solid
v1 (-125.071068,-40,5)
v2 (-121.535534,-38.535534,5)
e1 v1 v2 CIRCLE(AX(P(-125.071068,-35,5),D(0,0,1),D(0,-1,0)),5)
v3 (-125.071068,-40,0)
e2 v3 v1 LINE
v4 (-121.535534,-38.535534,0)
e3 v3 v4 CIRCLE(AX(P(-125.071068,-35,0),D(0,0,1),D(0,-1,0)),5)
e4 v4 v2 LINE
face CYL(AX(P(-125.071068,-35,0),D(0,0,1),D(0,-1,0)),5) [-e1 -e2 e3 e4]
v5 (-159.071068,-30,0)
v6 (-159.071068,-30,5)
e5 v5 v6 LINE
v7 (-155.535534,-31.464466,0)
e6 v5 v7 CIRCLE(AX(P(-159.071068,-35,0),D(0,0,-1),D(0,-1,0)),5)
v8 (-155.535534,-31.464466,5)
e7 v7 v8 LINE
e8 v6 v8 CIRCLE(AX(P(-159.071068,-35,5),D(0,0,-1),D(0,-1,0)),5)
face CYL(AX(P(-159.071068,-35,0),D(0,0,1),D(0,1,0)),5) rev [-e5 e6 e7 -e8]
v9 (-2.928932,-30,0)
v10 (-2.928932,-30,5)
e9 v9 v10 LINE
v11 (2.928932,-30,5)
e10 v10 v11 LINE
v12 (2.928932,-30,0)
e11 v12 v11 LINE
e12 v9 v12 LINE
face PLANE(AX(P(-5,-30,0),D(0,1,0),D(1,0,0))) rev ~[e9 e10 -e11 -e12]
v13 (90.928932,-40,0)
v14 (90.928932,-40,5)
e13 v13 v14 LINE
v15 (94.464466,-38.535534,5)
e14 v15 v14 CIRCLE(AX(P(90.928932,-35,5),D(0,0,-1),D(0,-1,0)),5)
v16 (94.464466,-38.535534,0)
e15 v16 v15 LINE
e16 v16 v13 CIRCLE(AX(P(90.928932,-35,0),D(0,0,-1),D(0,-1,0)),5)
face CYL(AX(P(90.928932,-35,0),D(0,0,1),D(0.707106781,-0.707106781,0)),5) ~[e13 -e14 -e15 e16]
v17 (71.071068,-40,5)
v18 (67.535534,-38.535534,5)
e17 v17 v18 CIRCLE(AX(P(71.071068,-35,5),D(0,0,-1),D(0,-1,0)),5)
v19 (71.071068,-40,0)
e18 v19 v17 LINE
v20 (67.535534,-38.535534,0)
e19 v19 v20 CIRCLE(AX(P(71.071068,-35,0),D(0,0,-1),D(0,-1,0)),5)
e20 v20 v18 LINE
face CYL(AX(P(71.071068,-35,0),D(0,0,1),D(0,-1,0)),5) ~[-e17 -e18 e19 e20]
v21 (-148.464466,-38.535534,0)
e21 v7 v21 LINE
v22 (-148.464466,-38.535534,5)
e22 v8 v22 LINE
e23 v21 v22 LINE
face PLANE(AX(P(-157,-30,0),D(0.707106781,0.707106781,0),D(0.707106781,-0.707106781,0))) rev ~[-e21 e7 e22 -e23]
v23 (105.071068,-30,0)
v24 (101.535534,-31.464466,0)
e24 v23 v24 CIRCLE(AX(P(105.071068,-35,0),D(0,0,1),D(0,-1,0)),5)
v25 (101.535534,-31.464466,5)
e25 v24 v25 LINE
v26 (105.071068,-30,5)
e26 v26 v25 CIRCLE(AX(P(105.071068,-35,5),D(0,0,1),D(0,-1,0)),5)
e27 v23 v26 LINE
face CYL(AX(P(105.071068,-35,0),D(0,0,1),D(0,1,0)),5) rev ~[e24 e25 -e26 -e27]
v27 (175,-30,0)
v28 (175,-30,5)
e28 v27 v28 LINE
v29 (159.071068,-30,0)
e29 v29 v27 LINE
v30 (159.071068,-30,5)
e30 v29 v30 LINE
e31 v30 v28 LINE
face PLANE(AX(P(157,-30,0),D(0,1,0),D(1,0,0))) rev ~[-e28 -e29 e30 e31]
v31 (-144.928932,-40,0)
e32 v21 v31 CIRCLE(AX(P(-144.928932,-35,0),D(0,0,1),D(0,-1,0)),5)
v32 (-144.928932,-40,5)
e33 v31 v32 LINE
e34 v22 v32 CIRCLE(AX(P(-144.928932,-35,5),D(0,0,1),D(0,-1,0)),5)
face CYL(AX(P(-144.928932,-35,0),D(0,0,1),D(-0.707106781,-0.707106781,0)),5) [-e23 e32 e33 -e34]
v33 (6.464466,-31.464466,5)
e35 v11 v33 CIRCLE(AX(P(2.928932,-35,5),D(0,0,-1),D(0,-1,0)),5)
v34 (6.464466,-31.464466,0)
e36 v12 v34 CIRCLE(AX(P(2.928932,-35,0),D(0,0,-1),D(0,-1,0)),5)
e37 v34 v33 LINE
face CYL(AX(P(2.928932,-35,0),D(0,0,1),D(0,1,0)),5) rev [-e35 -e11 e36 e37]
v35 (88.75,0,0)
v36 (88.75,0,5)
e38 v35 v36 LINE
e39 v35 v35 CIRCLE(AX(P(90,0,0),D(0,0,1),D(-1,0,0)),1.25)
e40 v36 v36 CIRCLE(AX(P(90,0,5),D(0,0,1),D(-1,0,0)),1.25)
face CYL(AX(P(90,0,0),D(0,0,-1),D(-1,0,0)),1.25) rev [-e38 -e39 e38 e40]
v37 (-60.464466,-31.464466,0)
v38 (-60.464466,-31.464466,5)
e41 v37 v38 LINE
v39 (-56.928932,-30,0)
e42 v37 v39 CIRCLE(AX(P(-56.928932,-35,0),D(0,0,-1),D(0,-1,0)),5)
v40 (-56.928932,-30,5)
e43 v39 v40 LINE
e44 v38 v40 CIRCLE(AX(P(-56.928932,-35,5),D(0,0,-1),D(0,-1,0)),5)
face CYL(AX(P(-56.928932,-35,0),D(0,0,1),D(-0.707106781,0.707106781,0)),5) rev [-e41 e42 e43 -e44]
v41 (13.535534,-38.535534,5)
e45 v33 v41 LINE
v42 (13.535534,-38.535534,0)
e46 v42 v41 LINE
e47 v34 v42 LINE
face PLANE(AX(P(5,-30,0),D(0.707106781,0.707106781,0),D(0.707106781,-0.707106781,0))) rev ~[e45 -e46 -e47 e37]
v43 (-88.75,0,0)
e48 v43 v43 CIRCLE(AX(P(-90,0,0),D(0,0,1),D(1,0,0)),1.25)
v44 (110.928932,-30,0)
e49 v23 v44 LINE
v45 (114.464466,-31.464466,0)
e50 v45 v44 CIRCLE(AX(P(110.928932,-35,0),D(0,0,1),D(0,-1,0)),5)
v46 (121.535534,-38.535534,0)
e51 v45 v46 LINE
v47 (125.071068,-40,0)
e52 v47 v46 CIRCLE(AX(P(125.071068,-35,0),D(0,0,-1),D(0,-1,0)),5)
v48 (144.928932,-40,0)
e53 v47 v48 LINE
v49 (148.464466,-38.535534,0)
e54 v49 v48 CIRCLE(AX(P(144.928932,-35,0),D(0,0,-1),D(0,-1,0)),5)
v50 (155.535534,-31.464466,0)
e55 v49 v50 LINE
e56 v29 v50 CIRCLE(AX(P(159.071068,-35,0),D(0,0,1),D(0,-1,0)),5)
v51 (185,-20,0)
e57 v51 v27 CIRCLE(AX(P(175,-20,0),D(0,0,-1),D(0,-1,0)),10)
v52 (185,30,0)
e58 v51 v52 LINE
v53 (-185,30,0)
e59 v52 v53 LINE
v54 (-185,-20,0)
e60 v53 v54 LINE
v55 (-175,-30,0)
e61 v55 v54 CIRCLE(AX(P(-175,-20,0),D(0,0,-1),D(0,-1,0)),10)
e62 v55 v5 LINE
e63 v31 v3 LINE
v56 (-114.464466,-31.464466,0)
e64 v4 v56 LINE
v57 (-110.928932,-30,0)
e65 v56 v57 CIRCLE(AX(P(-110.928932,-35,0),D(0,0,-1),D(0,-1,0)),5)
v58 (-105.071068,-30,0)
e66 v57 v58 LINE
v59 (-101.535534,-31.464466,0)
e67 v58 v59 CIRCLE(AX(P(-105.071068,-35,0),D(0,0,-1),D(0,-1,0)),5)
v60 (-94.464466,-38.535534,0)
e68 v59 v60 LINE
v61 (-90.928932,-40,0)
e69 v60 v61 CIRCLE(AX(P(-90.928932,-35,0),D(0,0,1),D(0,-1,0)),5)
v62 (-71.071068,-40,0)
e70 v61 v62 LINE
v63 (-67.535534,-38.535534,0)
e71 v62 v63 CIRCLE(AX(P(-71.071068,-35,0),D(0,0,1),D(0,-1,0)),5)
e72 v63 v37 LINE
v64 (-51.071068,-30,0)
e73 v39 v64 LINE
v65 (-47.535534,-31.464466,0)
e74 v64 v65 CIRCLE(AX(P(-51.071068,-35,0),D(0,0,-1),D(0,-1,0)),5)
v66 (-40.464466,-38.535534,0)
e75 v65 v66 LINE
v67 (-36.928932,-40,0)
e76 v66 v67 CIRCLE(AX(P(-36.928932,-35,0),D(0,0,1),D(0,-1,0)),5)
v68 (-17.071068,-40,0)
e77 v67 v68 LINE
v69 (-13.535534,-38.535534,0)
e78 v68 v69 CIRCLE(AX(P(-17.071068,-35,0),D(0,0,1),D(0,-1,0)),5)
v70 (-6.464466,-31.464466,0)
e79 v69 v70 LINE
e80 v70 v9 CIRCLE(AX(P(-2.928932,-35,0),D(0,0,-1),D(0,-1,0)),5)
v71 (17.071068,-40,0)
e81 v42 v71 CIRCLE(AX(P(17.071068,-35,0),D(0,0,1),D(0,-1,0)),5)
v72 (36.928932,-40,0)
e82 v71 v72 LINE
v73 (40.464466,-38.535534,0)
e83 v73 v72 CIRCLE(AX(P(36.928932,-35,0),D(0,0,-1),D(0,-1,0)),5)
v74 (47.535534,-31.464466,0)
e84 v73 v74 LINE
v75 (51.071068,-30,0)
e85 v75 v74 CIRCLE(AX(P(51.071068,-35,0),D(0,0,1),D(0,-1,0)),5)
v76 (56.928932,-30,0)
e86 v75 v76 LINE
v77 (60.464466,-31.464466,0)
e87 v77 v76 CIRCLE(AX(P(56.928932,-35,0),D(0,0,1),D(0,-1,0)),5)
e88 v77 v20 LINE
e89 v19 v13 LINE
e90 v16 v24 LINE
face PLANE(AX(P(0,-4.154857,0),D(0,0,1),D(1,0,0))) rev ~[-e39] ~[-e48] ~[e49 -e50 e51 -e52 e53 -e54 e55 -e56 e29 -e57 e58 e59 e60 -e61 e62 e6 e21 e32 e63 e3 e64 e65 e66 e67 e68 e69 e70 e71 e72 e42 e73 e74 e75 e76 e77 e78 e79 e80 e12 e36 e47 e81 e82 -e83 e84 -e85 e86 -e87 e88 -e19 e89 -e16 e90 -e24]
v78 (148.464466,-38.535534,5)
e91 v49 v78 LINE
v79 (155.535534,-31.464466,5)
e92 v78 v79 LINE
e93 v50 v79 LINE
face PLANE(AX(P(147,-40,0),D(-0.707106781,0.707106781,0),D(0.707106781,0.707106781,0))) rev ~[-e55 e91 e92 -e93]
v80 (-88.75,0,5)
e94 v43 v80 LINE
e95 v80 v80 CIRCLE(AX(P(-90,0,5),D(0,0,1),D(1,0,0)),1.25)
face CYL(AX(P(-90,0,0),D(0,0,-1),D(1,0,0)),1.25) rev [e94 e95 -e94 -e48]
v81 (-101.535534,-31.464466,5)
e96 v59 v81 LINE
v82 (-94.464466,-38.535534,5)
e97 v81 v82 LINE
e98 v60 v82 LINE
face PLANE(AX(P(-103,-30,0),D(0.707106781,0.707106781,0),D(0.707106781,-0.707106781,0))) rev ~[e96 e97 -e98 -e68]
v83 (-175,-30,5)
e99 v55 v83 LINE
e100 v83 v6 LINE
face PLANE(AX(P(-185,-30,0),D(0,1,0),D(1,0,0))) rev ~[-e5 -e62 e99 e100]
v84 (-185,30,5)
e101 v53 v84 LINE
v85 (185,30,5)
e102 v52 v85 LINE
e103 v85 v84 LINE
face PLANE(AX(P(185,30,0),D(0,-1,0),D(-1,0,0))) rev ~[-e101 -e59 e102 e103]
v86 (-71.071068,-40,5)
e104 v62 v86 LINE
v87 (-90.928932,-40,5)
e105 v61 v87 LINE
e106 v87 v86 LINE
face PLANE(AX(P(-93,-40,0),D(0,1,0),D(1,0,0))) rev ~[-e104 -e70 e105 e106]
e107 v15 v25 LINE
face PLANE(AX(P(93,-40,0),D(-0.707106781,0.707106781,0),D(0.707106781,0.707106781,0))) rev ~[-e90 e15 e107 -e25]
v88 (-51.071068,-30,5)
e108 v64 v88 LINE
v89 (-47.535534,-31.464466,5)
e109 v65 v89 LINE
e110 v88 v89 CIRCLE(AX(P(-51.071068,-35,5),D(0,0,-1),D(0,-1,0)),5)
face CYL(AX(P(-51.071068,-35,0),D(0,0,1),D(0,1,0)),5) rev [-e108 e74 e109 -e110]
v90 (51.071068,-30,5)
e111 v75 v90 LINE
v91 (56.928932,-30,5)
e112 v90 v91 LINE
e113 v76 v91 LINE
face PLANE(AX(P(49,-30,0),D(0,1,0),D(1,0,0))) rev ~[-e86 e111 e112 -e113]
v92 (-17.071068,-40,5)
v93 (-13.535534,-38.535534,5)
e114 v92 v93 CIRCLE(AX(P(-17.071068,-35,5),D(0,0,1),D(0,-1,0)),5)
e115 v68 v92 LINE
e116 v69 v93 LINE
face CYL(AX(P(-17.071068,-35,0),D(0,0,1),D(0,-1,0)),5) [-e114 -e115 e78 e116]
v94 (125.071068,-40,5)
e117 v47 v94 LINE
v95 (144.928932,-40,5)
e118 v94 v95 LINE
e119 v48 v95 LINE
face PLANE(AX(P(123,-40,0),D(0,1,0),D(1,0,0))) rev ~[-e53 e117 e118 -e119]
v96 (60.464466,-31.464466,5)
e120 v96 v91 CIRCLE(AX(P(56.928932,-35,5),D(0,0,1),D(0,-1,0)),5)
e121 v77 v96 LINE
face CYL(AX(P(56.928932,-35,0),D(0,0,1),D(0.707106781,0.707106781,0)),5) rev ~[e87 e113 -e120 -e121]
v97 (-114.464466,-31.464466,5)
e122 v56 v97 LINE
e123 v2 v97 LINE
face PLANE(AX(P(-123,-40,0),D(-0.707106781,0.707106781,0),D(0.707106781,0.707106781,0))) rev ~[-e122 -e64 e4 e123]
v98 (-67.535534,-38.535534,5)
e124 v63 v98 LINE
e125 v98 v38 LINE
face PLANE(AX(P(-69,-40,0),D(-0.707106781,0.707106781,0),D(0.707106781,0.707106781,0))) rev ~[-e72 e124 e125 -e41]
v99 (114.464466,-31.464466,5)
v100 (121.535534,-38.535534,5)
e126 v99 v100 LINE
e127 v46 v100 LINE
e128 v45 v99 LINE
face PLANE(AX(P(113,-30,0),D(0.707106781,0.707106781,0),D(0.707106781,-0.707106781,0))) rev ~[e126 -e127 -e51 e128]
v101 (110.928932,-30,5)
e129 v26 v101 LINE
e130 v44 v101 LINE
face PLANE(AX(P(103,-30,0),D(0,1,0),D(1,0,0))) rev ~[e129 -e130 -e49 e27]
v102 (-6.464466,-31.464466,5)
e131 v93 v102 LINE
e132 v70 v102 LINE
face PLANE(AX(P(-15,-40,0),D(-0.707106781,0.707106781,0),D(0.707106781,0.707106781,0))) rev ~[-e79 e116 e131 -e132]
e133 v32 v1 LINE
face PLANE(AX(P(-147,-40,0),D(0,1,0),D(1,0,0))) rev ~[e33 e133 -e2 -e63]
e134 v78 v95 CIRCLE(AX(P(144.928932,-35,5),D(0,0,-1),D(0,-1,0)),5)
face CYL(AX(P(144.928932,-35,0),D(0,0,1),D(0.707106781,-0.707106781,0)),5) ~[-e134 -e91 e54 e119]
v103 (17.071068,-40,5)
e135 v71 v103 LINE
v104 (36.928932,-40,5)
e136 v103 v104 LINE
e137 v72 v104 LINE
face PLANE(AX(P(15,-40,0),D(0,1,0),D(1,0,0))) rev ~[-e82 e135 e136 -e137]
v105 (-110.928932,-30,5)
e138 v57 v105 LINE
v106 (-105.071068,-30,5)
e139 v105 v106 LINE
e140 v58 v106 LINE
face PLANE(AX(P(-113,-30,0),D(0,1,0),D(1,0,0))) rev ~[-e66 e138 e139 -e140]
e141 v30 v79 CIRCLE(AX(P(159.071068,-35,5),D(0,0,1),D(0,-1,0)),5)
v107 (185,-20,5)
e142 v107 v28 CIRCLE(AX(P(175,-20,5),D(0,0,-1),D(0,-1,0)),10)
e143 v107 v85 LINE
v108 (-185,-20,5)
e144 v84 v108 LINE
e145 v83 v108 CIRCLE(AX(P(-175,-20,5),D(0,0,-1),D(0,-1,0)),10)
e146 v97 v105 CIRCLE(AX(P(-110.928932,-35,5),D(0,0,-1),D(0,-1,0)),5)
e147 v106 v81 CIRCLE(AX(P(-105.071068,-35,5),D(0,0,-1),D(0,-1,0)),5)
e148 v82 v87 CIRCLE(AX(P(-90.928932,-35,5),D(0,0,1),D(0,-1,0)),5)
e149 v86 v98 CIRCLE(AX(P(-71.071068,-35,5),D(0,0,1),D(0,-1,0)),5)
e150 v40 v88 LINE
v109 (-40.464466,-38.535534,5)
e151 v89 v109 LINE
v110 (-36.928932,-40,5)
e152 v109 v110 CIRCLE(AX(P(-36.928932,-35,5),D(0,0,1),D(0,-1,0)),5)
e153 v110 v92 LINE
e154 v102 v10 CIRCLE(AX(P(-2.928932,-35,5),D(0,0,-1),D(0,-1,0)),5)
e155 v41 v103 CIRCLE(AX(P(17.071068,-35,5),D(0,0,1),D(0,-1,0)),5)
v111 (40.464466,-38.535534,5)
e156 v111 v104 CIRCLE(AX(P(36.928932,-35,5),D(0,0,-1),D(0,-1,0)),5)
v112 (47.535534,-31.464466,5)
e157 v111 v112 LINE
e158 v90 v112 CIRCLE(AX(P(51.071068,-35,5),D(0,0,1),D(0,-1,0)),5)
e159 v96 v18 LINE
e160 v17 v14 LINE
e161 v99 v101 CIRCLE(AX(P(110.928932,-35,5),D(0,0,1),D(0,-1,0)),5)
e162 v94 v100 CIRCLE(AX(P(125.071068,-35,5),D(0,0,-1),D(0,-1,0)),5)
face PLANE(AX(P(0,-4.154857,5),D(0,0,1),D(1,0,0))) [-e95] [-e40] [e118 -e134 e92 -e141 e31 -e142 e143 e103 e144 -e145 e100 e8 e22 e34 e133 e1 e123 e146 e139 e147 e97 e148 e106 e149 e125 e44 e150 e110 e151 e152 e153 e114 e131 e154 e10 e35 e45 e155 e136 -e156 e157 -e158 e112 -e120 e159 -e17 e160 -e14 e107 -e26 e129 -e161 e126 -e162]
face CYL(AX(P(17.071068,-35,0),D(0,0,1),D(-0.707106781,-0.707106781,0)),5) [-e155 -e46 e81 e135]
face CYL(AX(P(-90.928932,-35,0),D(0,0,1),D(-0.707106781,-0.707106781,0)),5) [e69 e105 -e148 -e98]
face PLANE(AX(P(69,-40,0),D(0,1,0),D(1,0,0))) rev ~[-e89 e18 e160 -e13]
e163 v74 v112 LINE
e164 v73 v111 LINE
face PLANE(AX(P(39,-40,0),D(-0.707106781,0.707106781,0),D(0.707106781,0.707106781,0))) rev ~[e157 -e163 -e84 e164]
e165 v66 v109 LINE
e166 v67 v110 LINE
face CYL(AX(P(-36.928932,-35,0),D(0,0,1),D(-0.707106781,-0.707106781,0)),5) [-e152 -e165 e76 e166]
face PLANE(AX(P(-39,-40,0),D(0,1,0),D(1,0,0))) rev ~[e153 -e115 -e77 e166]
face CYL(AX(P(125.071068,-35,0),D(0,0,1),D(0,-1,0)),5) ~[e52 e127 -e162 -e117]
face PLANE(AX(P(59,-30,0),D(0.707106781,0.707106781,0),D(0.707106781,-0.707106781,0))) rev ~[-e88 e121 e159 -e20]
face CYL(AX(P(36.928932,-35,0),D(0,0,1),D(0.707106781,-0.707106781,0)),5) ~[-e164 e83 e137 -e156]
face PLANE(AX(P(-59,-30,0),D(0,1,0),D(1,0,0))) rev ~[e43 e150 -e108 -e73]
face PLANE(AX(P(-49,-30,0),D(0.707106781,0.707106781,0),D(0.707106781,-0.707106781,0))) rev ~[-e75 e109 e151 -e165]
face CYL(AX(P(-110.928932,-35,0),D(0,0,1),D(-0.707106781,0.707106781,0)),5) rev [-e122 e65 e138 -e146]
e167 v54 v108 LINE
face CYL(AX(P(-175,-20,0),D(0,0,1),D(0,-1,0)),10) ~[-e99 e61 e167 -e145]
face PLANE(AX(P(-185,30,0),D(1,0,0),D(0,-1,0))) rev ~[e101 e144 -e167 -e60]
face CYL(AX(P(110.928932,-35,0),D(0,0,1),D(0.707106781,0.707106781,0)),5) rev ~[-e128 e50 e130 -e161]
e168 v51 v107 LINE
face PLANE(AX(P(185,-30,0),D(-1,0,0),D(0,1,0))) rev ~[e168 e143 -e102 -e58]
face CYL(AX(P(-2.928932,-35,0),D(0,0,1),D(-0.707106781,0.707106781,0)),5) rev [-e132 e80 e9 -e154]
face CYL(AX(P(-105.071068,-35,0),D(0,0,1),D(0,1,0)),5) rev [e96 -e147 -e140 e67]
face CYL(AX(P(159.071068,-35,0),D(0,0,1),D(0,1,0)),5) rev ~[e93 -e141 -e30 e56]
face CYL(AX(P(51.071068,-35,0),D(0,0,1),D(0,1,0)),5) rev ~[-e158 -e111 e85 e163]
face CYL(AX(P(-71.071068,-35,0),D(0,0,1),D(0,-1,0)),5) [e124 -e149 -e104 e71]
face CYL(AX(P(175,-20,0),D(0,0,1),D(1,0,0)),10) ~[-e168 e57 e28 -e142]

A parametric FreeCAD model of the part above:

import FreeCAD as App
import Part
import Sketcher

V = App.Vector
Q = App.Units.Quantity


def edges_at(feature, points):
    """Names of the edges that pass closest to the given points."""
    edges = feature.Shape.Edges
    near = lambda p: min(range(len(edges)), key=lambda i: edges[i].distToShape(Part.Vertex(*p))[0])
    return sorted({f"Edge{near(p) + 1}" for p in points})


def add_polygon(sketch, points):
    """Adds a closed chain of lines whose ends are joined by coincident constraints."""
    first, n = sketch.GeometryCount, len(points)
    for a, b in zip(points, points[1:] + points[:1]):
        sketch.addGeometry(Part.LineSegment(App.Vector(*a, 0), App.Vector(*b, 0)), False)
    for i in range(n):
        sketch.addConstraint(Sketcher.Constraint("Coincident", first + i, 2, first + (i + 1) % n, 1))

doc = App.newDocument("Part")
body = doc.addObject("PartDesign::Body", "Body")

sketch1 = body.newObject("Sketcher::SketchObject", "Sketch")
sketch1.AttachmentSupport = (doc.getObject("XY_Plane"), [""])
sketch1.MapMode = "FlatFace"
add_polygon(sketch1, [(-185, -30), (-157, -30), (-147, -40), (-123, -40), (-113, -30), (-103, -30), (-93, -40), (-69, -40), (-59, -30), (-49, -30), (-39, -40), (-15, -40), (-5, -30), (5, -30), (15, -40), (39, -40), (49, -30), (59, -30), (69, -40), (93, -40), (103, -30), (113, -30), (123, -40), (147, -40), (157, -30), (185, -30), (185, 30), (-185, 30)])
sketch1.addGeometry(Part.Circle(V(-90, 0, 0), V(0, 0, 1), 1.2), False)
sketch1.addGeometry(Part.Circle(V(90, 0, 0), V(0, 0, 1), 1.2), False)
sketch1.addConstraint([
    Sketcher.Constraint("Horizontal", 0),
    Sketcher.Constraint("Horizontal", 2),
    Sketcher.Constraint("Horizontal", 4),
    Sketcher.Constraint("Horizontal", 6),
    Sketcher.Constraint("Horizontal", 8),
    Sketcher.Constraint("Horizontal", 10),
    Sketcher.Constraint("Horizontal", 12),
    Sketcher.Constraint("Horizontal", 14),
    Sketcher.Constraint("Horizontal", 16),
    Sketcher.Constraint("Horizontal", 18),
    Sketcher.Constraint("Horizontal", 20),
    Sketcher.Constraint("Horizontal", 22),
    Sketcher.Constraint("Horizontal", 24),
    Sketcher.Constraint("Vertical", 25),
    Sketcher.Constraint("Horizontal", 26),
    Sketcher.Constraint("Vertical", 27),
    Sketcher.Constraint("Equal", 28, 29),
    Sketcher.Constraint("Symmetric", 28, 3, 29, 3, -1, 1),
    Sketcher.Constraint("Symmetric", 24, 2, 26, 2, -1, 1),
    Sketcher.Constraint("Symmetric", 10, 2, 13, 2, -2),
    Sketcher.Constraint("Symmetric", 8, 2, 15, 2, -2),
    Sketcher.Constraint("Symmetric", 6, 2, 17, 2, -2),
    Sketcher.Constraint("Symmetric", 4, 2, 19, 2, -2),
    Sketcher.Constraint("Symmetric", 2, 2, 21, 2, -2),
    Sketcher.Constraint("Symmetric", 0, 2, 23, 2, -2),
    Sketcher.Constraint("PointOnObject", 28, 3, -1),
    Sketcher.Constraint("Perpendicular", 1, 3),
    Sketcher.Constraint("Perpendicular", 3, 5),
    Sketcher.Constraint("Perpendicular", 5, 7),
    Sketcher.Constraint("Perpendicular", 7, 9),
    Sketcher.Constraint("Perpendicular", 9, 11),
    Sketcher.Constraint("Perpendicular", 11, 13),
    Sketcher.Constraint("Perpendicular", 13, 15),
    Sketcher.Constraint("Perpendicular", 15, 17),
    Sketcher.Constraint("Perpendicular", 17, 19),
    Sketcher.Constraint("Perpendicular", 19, 21),
    Sketcher.Constraint("Perpendicular", 21, 23),
    Sketcher.Constraint("Horizontal", 0, 2, 3, 2),
    Sketcher.Constraint("Horizontal", 2, 2, 5, 2),
    Sketcher.Constraint("Horizontal", 4, 2, 7, 2),
    Sketcher.Constraint("Horizontal", 6, 2, 9, 2),
    Sketcher.Constraint("Horizontal", 8, 2, 11, 2),
    Sketcher.Constraint("Equal", 2, 6),
    Sketcher.Constraint("Equal", 4, 8),
    Sketcher.Constraint("Equal", 6, 10),
    Sketcher.Constraint("Equal", 8, 12),
    Sketcher.Constraint("Equal", 10, 14),
    Sketcher.Constraint("Diameter", 28, Q("2.5 mm")),
    Sketcher.Constraint("DistanceX", 0, 1, 0, 2, Q("28 mm")),
    Sketcher.Constraint("DistanceX", 2, 1, 2, 2, Q("24 mm")),
    Sketcher.Constraint("DistanceX", 4, 1, 4, 2, Q("10 mm")),
    Sketcher.Constraint("DistanceX", 26, 2, 26, 1, Q("370 mm")),
    Sketcher.Constraint("DistanceY", 25, 1, 25, 2, Q("60 mm")),
    Sketcher.Constraint("DistanceX", 28, 3, -1, 1, Q("90 mm")),
])
pad1 = body.newObject("PartDesign::Pad", "Pad")
pad1.Profile = sketch1
pad1.Length = 5
doc.recompute()

fillet = body.newObject("PartDesign::Fillet", "Fillet")
fillet.Base = (pad1, edges_at(pad1, [
    (157, -30, 2.5),
    (147, -40, 2.5),
    (123, -40, 2.5),
    (113, -30, 2.5),
    (103, -30, 2.5),
    (93, -40, 2.5),
    (69, -40, 2.5),
    (59, -30, 2.5),
    (49, -30, 2.5),
    (39, -40, 2.5),
    (15, -40, 2.5),
    (5, -30, 2.5),
    (-5, -30, 2.5),
    (-15, -40, 2.5),
    (-39, -40, 2.5),
    (-49, -30, 2.5),
    (-59, -30, 2.5),
    (-69, -40, 2.5),
    (-93, -40, 2.5),
    (-103, -30, 2.5),
    (-113, -30, 2.5),
    (-123, -40, 2.5),
    (-147, -40, 2.5),
    (-157, -30, 2.5),
]))
fillet.Radius = 5
doc.recompute()

fillet2 = body.newObject("PartDesign::Fillet", "Fillet001")
fillet2.Base = (fillet, edges_at(fillet, [(185, -30, 2.5), (-185, -30, 2.5)]))
fillet2.Radius = 10

doc.recompute()
